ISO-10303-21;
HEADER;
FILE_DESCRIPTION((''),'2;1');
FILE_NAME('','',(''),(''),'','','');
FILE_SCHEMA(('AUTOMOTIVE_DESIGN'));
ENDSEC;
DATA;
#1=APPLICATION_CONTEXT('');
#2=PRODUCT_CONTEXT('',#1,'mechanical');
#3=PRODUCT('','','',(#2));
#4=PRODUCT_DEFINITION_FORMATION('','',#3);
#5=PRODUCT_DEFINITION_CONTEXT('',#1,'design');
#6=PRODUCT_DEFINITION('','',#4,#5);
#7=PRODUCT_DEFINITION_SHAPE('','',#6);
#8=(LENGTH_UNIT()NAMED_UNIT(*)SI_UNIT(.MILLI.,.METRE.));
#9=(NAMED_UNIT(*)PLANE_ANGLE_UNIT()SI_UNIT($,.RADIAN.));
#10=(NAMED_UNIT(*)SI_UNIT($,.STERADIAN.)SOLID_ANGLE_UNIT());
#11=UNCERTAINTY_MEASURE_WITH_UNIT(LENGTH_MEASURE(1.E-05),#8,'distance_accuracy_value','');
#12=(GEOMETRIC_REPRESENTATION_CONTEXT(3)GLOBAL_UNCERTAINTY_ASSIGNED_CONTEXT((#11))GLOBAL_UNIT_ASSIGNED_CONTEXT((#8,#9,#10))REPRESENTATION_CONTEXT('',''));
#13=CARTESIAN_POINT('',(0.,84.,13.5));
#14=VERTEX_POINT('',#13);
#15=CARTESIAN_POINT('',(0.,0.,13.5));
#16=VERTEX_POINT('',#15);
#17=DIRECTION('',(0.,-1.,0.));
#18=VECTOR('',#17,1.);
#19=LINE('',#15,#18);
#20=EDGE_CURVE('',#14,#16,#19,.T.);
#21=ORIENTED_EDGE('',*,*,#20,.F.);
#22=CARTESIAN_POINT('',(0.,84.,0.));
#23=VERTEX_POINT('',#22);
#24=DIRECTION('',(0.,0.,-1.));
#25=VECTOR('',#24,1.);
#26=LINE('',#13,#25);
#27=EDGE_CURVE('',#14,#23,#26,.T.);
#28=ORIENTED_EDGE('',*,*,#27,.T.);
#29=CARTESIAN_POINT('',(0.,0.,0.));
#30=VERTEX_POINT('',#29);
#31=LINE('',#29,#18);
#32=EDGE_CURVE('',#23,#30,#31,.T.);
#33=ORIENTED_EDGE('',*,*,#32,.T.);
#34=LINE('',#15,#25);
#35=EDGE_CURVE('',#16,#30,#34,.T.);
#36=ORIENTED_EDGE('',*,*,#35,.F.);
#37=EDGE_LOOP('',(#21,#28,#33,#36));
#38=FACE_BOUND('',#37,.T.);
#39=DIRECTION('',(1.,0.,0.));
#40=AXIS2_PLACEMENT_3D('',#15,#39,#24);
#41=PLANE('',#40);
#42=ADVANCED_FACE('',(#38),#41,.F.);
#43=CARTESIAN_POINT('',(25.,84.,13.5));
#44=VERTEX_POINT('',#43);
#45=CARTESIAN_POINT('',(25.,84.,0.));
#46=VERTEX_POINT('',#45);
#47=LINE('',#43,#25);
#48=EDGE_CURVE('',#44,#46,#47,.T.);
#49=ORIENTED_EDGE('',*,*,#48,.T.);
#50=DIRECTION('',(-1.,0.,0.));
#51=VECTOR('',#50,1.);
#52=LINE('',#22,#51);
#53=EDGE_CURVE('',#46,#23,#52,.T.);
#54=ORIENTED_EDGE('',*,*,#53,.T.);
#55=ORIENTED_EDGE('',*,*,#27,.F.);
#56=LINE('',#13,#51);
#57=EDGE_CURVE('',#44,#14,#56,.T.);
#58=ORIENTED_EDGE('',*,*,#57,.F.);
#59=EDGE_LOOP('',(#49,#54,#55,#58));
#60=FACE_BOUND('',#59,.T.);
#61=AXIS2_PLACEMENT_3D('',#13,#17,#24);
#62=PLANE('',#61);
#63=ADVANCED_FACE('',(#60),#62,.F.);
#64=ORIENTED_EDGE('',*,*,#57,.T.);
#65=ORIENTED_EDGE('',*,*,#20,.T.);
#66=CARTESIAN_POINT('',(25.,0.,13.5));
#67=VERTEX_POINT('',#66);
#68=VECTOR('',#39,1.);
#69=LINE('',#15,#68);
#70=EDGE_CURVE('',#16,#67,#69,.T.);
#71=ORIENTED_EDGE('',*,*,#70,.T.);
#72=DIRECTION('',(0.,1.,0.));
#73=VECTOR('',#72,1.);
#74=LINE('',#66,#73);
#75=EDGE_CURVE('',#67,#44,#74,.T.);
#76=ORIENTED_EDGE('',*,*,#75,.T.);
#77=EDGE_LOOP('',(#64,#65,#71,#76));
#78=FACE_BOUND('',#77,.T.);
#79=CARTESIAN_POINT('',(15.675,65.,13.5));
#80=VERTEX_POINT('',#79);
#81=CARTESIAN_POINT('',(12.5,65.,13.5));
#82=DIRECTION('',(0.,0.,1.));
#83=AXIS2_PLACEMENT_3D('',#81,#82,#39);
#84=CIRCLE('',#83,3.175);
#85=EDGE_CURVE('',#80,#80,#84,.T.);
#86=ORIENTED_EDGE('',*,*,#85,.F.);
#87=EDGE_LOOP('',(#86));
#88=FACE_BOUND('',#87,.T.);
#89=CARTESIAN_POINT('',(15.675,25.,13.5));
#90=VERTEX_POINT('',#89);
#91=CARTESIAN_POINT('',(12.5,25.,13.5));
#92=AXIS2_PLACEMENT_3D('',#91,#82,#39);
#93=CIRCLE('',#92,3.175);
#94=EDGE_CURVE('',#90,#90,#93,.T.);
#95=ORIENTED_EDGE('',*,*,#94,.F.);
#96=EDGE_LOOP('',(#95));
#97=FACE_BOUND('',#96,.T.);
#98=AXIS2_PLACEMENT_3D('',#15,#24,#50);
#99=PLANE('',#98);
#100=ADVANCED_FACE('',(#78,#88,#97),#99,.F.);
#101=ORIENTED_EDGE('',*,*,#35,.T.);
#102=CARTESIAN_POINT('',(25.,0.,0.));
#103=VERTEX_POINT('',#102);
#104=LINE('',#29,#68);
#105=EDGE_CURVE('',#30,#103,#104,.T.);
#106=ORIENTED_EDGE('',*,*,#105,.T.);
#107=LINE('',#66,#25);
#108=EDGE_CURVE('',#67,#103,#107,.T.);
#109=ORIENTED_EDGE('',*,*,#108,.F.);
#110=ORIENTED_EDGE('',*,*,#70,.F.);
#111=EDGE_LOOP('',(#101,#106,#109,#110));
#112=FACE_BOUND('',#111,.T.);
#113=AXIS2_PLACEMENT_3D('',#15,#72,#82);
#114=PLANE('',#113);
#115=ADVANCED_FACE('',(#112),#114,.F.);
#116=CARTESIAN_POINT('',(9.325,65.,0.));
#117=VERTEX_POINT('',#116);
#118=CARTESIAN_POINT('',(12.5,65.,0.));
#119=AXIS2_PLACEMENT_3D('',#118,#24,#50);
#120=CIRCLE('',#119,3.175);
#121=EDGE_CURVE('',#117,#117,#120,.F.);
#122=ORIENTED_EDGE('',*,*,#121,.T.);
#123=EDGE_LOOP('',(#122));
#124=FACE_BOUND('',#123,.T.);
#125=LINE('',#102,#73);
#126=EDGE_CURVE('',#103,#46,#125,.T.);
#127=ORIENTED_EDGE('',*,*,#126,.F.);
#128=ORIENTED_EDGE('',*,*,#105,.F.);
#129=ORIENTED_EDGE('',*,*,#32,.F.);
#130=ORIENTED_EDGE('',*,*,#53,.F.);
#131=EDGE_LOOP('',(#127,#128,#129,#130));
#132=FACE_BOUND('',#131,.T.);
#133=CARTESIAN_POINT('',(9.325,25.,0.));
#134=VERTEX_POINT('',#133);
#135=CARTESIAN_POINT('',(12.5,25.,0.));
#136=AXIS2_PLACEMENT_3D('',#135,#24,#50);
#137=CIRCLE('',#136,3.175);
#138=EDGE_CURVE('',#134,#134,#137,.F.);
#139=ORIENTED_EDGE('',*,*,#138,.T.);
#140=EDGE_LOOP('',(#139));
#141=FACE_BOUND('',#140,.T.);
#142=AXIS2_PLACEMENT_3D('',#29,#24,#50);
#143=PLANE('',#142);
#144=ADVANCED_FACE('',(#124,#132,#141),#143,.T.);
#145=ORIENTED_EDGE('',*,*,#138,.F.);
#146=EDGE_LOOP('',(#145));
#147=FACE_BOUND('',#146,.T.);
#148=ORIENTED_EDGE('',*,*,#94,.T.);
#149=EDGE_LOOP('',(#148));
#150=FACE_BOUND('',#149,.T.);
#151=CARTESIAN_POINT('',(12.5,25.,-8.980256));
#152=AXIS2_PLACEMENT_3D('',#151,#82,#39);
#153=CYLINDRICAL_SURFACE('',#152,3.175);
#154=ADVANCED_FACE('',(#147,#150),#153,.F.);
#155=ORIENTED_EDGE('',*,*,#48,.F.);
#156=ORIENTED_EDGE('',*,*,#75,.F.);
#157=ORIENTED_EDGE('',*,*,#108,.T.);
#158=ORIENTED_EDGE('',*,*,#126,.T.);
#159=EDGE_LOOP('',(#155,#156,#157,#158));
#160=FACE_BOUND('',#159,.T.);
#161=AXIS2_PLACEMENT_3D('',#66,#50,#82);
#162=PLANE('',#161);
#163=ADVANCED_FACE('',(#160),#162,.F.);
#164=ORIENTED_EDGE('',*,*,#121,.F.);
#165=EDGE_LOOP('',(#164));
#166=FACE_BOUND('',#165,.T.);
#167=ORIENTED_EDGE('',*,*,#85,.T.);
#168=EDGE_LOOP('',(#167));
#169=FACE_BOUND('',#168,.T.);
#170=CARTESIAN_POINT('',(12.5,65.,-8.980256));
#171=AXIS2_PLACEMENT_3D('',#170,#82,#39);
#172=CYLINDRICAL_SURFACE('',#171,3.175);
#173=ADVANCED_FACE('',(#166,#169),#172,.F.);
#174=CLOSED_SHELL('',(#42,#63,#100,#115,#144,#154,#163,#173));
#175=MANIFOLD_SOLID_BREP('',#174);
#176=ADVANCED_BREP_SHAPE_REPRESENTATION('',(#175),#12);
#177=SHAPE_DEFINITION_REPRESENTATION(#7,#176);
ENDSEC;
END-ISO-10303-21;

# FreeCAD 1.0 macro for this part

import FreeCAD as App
import Part
import Sketcher

V = App.Vector


def add_polygon(sketch, points):
    """Adds a closed chain of lines whose ends are joined by coincident constraints."""
    first, n = sketch.GeometryCount, len(points)
    for a, b in zip(points, points[1:] + points[:1]):
        sketch.addGeometry(Part.LineSegment(App.Vector(*a, 0), App.Vector(*b, 0)), False)
    for i in range(n):
        sketch.addConstraint(Sketcher.Constraint("Coincident", first + i, 2, first + (i + 1) % n, 1))

doc = App.newDocument("Part")
params = doc.addObject("Spreadsheet::Sheet", "Params")
for row, (alias, value) in enumerate([
    ("sketch1_width", "25 mm"),
    ("sketch1_height", "84 mm"),
    ("pad1_length", "13.5 mm"),
    ("sketch2_diameter", "6.35 mm"),
    ("pocket1_length", "13.5 mm"),
], start=1):
    params.set(f"A{row}", alias)
    params.set(f"B{row}", "=" + value)
    params.setAlias(f"B{row}", alias)

body = doc.addObject("PartDesign::Body", "Body")

# Sketch on XY plane
sketch1 = body.newObject("Sketcher::SketchObject", "Sketch")
sketch1.AttachmentSupport = (doc.getObject("XY_Plane"), [""])
sketch1.MapMode = "FlatFace"
add_polygon(sketch1, [(0, 84), (0, 0), (25, 0), (25, 84)])  # lines 0-3
sketch1.addConstraint([
    Sketcher.Constraint("Vertical", 0),
    Sketcher.Constraint("Horizontal", 1),
    Sketcher.Constraint("Vertical", 2),
    Sketcher.Constraint("Horizontal", 3),
    Sketcher.Constraint("Coincident", 0, 2, -1, 1),
    Sketcher.Constraint("DistanceX", 1, 1, 1, 2, 25.0),
    Sketcher.Constraint("DistanceY", 0, 2, 0, 1, 84.0),
])
sketch1.setExpression("Constraints[9]", "Params.sketch1_width")
sketch1.setExpression("Constraints[10]", "Params.sketch1_height")
pad1 = body.newObject("PartDesign::Pad", "Pad")
pad1.Profile = sketch1
pad1.setExpression("Length", "Params.pad1_length")

# Sketch on XY plane
sketch2 = body.newObject("Sketcher::SketchObject", "Sketch001")
sketch2.AttachmentSupport = (doc.getObject("XY_Plane"), [""])
sketch2.MapMode = "FlatFace"
sketch2.AttachmentOffset = App.Placement(V(0, 0, 13.5), App.Rotation())
sketch2.addGeometry([
    Part.Circle(V(12.5, 65, 0), V(0, 0, 1), 3.175),
    Part.Circle(V(12.5, 25, 0), V(0, 0, 1), 3.175),
], False)
sketch2.addConstraint([
    Sketcher.Constraint("Equal", 0, 1),
    Sketcher.Constraint("Vertical", 0, 3, 1, 3),
    Sketcher.Constraint("Diameter", 0, 6.35),
    Sketcher.Constraint("DistanceY", -1, 1, 0, 3, 65.0),
    Sketcher.Constraint("DistanceY", -1, 1, 1, 3, 25.0),
    Sketcher.Constraint("DistanceX", -1, 1, 0, 3, 12.5),
])
sketch2.setExpression("Constraints[2]", "Params.sketch2_diameter")
pocket1 = body.newObject("PartDesign::Pocket", "Pocket")
pocket1.Profile = sketch2
pocket1.setExpression("Length", "Params.pocket1_length")

doc.recompute()
